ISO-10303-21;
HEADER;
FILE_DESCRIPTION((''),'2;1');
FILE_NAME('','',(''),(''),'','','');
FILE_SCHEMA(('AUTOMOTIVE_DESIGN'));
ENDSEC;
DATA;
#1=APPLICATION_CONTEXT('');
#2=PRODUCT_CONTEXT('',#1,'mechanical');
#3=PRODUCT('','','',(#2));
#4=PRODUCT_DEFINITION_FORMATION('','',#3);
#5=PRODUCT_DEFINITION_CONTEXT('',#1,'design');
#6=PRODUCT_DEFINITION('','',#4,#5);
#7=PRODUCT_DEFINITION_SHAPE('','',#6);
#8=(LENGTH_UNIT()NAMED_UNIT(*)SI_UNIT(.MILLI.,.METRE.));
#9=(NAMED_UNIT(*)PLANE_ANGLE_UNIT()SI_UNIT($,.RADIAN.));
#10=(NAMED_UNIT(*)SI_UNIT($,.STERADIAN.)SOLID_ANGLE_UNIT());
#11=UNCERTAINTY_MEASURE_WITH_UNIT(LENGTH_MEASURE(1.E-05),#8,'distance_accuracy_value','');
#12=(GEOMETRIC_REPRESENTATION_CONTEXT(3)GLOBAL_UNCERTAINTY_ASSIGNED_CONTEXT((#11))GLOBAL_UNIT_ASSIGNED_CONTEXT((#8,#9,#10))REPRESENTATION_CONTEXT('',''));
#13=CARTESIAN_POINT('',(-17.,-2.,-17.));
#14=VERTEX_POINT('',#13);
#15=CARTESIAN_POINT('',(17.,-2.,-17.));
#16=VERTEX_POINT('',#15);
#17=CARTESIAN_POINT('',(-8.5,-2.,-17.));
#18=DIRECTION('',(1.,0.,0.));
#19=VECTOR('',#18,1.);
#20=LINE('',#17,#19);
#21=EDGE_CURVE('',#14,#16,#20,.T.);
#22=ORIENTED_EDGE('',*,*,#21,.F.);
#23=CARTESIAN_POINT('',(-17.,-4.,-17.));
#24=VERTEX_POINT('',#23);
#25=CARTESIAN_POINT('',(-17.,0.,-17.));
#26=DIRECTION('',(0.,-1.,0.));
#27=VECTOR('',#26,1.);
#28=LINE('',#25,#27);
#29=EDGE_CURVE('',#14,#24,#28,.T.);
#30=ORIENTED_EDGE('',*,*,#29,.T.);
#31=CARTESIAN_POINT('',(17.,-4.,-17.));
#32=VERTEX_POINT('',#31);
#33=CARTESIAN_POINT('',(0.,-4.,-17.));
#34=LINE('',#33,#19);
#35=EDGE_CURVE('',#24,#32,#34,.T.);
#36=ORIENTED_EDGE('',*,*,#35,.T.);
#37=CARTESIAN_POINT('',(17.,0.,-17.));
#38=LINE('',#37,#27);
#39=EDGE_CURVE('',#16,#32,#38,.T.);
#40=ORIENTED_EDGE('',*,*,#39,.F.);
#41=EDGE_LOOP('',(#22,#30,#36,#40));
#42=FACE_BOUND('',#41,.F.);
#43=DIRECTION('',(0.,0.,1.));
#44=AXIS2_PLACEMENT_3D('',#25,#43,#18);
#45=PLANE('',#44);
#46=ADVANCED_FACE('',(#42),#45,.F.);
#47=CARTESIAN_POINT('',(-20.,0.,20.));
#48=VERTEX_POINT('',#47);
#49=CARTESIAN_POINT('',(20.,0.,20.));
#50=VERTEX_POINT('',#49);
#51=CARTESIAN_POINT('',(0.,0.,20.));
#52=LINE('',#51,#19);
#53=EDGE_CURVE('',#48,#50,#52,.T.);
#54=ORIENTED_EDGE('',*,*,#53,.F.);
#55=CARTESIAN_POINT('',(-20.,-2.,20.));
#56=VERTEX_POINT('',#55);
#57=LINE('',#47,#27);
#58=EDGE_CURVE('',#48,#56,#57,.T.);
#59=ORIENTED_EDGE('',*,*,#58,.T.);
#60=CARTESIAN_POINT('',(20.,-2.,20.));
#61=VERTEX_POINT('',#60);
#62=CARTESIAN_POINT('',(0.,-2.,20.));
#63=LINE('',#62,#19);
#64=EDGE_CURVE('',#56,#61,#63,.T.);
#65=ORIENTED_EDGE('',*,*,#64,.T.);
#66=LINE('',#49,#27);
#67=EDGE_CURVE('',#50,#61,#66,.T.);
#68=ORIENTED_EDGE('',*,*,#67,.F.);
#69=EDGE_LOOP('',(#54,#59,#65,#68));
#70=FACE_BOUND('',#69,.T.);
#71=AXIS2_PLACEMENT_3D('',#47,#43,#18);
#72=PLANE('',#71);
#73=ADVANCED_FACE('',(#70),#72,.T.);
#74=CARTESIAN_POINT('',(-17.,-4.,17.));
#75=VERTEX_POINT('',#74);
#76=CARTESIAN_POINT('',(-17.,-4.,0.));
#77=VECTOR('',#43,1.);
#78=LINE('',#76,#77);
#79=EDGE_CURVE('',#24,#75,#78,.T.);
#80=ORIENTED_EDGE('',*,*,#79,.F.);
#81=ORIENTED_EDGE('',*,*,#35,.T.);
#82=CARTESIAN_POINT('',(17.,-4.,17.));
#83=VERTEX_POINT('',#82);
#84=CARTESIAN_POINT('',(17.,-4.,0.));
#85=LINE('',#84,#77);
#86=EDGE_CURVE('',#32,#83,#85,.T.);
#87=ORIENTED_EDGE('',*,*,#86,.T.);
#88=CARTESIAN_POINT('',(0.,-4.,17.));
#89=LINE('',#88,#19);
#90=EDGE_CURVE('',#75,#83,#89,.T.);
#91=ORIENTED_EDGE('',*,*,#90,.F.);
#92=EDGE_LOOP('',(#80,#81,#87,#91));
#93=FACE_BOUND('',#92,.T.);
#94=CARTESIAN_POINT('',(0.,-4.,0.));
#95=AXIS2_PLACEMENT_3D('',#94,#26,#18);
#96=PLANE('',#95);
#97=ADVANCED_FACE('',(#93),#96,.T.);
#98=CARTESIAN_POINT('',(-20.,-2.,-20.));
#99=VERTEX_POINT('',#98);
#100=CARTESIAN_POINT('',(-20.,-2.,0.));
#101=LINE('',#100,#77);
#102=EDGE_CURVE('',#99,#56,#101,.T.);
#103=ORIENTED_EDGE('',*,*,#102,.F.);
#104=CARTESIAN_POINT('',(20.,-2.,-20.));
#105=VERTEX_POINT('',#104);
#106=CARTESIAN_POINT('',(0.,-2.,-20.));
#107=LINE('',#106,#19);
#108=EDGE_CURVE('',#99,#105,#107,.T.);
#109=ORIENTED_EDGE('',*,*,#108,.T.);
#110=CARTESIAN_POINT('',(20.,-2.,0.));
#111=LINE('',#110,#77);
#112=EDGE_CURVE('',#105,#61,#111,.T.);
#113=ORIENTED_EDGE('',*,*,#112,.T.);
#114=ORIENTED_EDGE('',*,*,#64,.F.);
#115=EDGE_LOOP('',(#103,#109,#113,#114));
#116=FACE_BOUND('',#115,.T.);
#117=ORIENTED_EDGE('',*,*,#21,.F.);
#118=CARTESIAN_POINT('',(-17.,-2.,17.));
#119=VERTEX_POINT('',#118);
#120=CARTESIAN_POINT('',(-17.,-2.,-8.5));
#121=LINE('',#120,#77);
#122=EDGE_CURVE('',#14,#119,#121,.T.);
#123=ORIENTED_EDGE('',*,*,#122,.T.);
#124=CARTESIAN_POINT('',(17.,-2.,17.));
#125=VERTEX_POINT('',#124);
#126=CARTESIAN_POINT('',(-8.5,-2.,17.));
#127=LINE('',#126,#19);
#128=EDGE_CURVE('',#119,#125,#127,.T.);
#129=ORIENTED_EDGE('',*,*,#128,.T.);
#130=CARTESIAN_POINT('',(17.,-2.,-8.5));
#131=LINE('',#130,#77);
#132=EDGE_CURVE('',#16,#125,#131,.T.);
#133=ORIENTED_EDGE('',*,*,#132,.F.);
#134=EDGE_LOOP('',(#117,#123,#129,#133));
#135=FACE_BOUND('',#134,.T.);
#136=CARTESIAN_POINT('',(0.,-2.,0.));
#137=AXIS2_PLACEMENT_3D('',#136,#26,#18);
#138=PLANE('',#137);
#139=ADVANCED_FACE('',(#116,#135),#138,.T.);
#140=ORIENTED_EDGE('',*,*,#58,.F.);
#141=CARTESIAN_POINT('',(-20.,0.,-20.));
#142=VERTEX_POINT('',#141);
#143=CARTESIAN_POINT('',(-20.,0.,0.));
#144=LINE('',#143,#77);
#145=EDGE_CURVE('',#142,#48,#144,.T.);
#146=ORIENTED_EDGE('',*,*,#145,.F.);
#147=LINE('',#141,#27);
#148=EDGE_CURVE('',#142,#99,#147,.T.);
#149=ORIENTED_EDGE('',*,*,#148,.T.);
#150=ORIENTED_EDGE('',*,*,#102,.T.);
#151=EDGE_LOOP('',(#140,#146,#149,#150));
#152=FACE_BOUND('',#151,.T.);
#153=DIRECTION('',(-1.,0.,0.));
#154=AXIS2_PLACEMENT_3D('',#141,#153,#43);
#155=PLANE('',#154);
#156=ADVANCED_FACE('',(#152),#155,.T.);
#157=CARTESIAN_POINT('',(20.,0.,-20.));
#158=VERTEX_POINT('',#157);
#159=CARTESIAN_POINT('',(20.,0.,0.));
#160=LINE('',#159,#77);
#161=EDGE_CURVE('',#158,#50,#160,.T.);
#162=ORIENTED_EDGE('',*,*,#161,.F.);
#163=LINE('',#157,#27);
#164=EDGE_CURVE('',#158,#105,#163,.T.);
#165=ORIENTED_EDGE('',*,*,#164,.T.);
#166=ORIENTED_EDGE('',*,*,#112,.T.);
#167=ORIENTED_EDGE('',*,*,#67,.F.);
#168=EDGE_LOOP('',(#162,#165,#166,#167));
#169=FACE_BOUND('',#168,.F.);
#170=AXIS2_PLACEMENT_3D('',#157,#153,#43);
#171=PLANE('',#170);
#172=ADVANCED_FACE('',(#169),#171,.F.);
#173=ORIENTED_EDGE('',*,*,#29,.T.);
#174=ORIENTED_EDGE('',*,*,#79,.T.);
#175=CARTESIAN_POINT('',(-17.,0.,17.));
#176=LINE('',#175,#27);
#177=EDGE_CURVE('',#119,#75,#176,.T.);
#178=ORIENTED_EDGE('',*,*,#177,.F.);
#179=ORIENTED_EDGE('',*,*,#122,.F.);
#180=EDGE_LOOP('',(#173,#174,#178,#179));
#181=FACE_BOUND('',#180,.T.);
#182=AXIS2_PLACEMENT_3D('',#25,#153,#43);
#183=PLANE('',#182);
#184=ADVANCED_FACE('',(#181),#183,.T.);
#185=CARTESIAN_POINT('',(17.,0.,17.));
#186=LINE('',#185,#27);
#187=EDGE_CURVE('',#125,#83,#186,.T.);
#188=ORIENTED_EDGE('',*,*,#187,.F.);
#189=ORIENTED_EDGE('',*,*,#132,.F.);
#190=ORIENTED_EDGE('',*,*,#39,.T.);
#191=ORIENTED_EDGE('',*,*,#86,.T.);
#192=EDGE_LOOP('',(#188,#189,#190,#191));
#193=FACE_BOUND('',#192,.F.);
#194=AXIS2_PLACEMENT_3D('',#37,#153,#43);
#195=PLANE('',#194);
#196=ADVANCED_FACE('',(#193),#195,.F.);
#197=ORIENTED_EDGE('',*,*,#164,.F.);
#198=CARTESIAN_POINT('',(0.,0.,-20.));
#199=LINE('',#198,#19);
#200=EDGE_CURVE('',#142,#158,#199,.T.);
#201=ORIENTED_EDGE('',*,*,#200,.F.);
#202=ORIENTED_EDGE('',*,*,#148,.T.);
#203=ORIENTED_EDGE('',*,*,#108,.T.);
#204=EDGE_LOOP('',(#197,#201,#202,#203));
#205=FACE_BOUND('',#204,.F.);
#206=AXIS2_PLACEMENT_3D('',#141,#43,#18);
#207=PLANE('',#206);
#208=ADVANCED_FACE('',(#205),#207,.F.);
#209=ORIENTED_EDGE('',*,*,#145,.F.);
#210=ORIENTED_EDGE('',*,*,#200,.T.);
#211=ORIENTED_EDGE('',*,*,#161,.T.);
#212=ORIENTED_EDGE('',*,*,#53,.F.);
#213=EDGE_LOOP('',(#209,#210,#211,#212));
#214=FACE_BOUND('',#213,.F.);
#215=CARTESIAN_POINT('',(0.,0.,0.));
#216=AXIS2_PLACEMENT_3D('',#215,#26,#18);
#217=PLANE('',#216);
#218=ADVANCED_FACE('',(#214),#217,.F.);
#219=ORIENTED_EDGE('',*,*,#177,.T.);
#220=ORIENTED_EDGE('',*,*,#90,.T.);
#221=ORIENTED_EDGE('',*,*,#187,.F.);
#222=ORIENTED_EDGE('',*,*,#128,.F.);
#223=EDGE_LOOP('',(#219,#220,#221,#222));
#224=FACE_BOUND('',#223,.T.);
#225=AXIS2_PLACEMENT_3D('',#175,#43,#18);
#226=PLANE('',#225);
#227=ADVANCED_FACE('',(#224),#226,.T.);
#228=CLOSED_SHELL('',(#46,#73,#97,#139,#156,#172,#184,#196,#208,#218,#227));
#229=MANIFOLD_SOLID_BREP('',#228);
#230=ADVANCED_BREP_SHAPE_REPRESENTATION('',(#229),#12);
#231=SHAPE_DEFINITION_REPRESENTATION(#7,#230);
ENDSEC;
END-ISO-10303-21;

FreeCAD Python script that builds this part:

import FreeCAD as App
import Part
import Sketcher

doc = App.newDocument("Part")
body = doc.addObject("PartDesign::Body", "Body")

# Sketch on XZ plane
sketch1 = doc.addObject("Sketcher::SketchObject", "Sketch")
body.addObject(sketch1)
sketch1.AttachmentSupport = (doc.XZ_Plane, [""])
sketch1.MapMode = "FlatFace"
sketch1.addGeometry([
    Part.LineSegment(App.Vector(-17, 17, 0), App.Vector(-17, -17, 0)),
    Part.LineSegment(App.Vector(-17, -17, 0), App.Vector(17, -17, 0)),
    Part.LineSegment(App.Vector(17, -17, 0), App.Vector(17, 17, 0)),
    Part.LineSegment(App.Vector(17, 17, 0), App.Vector(-17, 17, 0)),
], False)
sketch1.addConstraint([
    Sketcher.Constraint("Coincident", 0, 2, 1, 1),
    Sketcher.Constraint("Coincident", 1, 2, 2, 1),
    Sketcher.Constraint("Coincident", 2, 2, 3, 1),
    Sketcher.Constraint("Coincident", 3, 2, 0, 1),
    Sketcher.Constraint("Vertical", 0),
    Sketcher.Constraint("Horizontal", 1),
    Sketcher.Constraint("Vertical", 2),
    Sketcher.Constraint("Horizontal", 3),
    Sketcher.Constraint("Symmetric", 0, 2, 2, 2, -1, 1),
    Sketcher.Constraint("Equal", 3, 0),
    Sketcher.Constraint("DistanceX", 1, 1, 1, 2, 34.0),
])
pad1 = doc.addObject("PartDesign::Pad", "Pad")
body.addObject(pad1)
pad1.Profile = sketch1
pad1.Length = 4

# Sketch on XZ plane
sketch2 = doc.addObject("Sketcher::SketchObject", "Sketch001")
body.addObject(sketch2)
sketch2.AttachmentSupport = (doc.XZ_Plane, [""])
sketch2.MapMode = "FlatFace"
sketch2.addGeometry([
    Part.LineSegment(App.Vector(-20, 20, 0), App.Vector(-20, -20, 0)),
    Part.LineSegment(App.Vector(-20, -20, 0), App.Vector(20, -20, 0)),
    Part.LineSegment(App.Vector(20, -20, 0), App.Vector(20, 20, 0)),
    Part.LineSegment(App.Vector(20, 20, 0), App.Vector(-20, 20, 0)),
], False)
sketch2.addConstraint([
    Sketcher.Constraint("Coincident", 0, 2, 1, 1),
    Sketcher.Constraint("Coincident", 1, 2, 2, 1),
    Sketcher.Constraint("Coincident", 2, 2, 3, 1),
    Sketcher.Constraint("Coincident", 3, 2, 0, 1),
    Sketcher.Constraint("Vertical", 0),
    Sketcher.Constraint("Horizontal", 1),
    Sketcher.Constraint("Vertical", 2),
    Sketcher.Constraint("Horizontal", 3),
    Sketcher.Constraint("Symmetric", 0, 2, 2, 2, -1, 1),
    Sketcher.Constraint("Equal", 3, 0),
    Sketcher.Constraint("DistanceX", 1, 1, 1, 2, 40.0),
])
pad2 = doc.addObject("PartDesign::Pad", "Pad001")
body.addObject(pad2)
pad2.Profile = sketch2
pad2.Length = 2

doc.recompute()
